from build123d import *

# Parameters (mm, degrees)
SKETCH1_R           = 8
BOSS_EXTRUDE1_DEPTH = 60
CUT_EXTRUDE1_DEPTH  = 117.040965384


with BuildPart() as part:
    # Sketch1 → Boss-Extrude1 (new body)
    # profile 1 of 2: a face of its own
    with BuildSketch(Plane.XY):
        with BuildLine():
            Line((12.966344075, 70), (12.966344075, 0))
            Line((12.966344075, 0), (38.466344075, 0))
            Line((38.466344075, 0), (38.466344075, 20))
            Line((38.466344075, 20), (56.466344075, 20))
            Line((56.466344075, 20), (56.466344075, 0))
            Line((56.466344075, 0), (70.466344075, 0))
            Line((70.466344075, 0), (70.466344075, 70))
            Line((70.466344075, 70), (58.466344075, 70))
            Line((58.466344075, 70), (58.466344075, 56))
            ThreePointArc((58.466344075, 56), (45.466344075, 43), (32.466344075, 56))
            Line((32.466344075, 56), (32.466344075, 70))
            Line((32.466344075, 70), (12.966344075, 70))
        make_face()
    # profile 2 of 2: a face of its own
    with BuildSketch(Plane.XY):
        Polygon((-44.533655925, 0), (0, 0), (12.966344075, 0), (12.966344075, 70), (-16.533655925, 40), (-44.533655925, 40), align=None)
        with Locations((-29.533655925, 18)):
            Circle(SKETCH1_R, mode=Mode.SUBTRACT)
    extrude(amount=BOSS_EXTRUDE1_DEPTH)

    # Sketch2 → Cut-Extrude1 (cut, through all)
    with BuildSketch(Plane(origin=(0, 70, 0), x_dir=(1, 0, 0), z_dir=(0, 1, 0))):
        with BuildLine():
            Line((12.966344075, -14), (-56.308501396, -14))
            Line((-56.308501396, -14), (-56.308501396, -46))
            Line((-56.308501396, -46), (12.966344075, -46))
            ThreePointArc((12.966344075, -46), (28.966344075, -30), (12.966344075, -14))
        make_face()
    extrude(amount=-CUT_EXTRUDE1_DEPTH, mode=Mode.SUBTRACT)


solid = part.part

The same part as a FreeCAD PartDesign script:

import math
import FreeCAD as App
import Part
import Sketcher
from FreeCAD import Vector
Q = App.Units.Quantity

doc = App.newDocument("Part")
params = doc.addObject("Spreadsheet::Sheet", "Params")
for row, (alias, value) in enumerate([
    ("sketch1_diameter", "16 mm"),
    ("sketch1_radius", "13 mm"),
    ("sketch1_width", "18 mm"),
    ("sketch1_width2", "14 mm"),
    ("sketch1_width3", "12 mm"),
    ("pad1_length", "60 mm"),
    ("sketch2_radius", "16 mm"),
], start=1):
    params.set(f"A{row}", alias)
    params.set(f"B{row}", "=" + value)
    params.setAlias(f"B{row}", alias)

body = doc.addObject("PartDesign::Body", "Body")

sketch1 = doc.addObject("Sketcher::SketchObject", "Sketch")
body.addObject(sketch1)
sketch1.AttachmentSupport = (doc.XY_Plane, [""])
sketch1.MapMode = "FlatFace"
sketch1.addGeometry([
    Part.LineSegment(Vector(38.466344, 0, 0), Vector(38.466344, 20, 0)),
    Part.LineSegment(Vector(38.466344, 20, 0), Vector(56.466344, 20, 0)),
    Part.LineSegment(Vector(56.466344, 20, 0), Vector(56.466344, 0, 0)),
    Part.LineSegment(Vector(56.466344, 0, 0), Vector(70.466344, 0, 0)),
    Part.LineSegment(Vector(70.466344, 0, 0), Vector(70.466344, 70, 0)),
    Part.LineSegment(Vector(70.466344, 70, 0), Vector(58.466344, 70, 0)),
    Part.LineSegment(Vector(58.466344, 70, 0), Vector(58.466344, 56, 0)),
    Part.ArcOfCircle(Part.Circle(Vector(45.466344, 56, 0), Vector(0, 0, 1), 13), math.radians(180), math.radians(360)),
    Part.LineSegment(Vector(32.466344, 56, 0), Vector(32.466344, 70, 0)),
    Part.LineSegment(Vector(32.466344, 70, 0), Vector(12.966344, 70, 0)),
    Part.LineSegment(Vector(12.966344, 70, 0), Vector(-16.533656, 40, 0)),
    Part.LineSegment(Vector(-16.533656, 40, 0), Vector(-44.533656, 40, 0)),
    Part.LineSegment(Vector(-44.533656, 40, 0), Vector(-44.533656, 0, 0)),
    Part.LineSegment(Vector(-44.533656, 0, 0), Vector(38.466344, 0, 0)),
    Part.Circle(Vector(-29.533656, 18, 0), Vector(0, 0, 1), 8),
], False)
sketch1.addConstraint([
    Sketcher.Constraint("Coincident", 0, 2, 1, 1),
    Sketcher.Constraint("Coincident", 1, 2, 2, 1),
    Sketcher.Constraint("Coincident", 2, 2, 3, 1),
    Sketcher.Constraint("Coincident", 3, 2, 4, 1),
    Sketcher.Constraint("Coincident", 4, 2, 5, 1),
    Sketcher.Constraint("Coincident", 5, 2, 6, 1),
    Sketcher.Constraint("Tangent", 6, 2, 7, 2),
    Sketcher.Constraint("Tangent", 7, 1, 8, 1),
    Sketcher.Constraint("Coincident", 8, 2, 9, 1),
    Sketcher.Constraint("Coincident", 9, 2, 10, 1),
    Sketcher.Constraint("Coincident", 10, 2, 11, 1),
    Sketcher.Constraint("Coincident", 11, 2, 12, 1),
    Sketcher.Constraint("Coincident", 12, 2, 13, 1),
    Sketcher.Constraint("Coincident", 13, 2, 0, 1),
    Sketcher.Constraint("Vertical", 0),
    Sketcher.Constraint("Horizontal", 1),
    Sketcher.Constraint("Vertical", 2),
    Sketcher.Constraint("Horizontal", 3),
    Sketcher.Constraint("Vertical", 4),
    Sketcher.Constraint("Horizontal", 5),
    Sketcher.Constraint("Vertical", 6),
    Sketcher.Constraint("Vertical", 8),
    Sketcher.Constraint("Horizontal", 9),
    Sketcher.Constraint("Horizontal", 11),
    Sketcher.Constraint("Vertical", 12),
    Sketcher.Constraint("Horizontal", 13),
    Sketcher.Constraint("PointOnObject", 2, 2, -1),
    Sketcher.Constraint("PointOnObject", 12, 2, -1),
    Sketcher.Constraint("Horizontal", 5, 2, 8, 2),
    Sketcher.Constraint("Equal", 3, 6),
    Sketcher.Constraint("Diameter", 14, Q("16 mm")),
    Sketcher.Constraint("Radius", 7, Q("13 mm")),
    Sketcher.Constraint("DistanceX", 1, 1, 1, 2, Q("18 mm")),
    Sketcher.Constraint("DistanceX", 3, 1, 3, 2, Q("14 mm")),
    Sketcher.Constraint("DistanceX", 5, 2, 5, 1, Q("12 mm")),
    Sketcher.Constraint("DistanceX", 11, 2, 11, 1, Q("28 mm")),
    Sketcher.Constraint("DistanceX", 13, 1, 13, 2, Q("83 mm")),
    Sketcher.Constraint("DistanceY", 0, 1, 0, 2, Q("20 mm")),
    Sketcher.Constraint("DistanceY", 4, 1, 4, 2, Q("70 mm")),
    Sketcher.Constraint("DistanceY", 12, 2, 12, 1, Q("40 mm")),
    Sketcher.Constraint("DistanceX", 9, 2, 9, 1, Q("19.5 mm")),
    Sketcher.Constraint("DistanceY", -1, 1, 14, 3, Q("18 mm")),
    Sketcher.Constraint("DistanceX", 14, 3, 7, 3, Q("75 mm")),
    Sketcher.Constraint("DistanceX", -1, 1, 7, 3, Q("45.466344 mm")),
])
sketch1.setExpression("Constraints[30]", "Params.sketch1_diameter")
sketch1.setExpression("Constraints[31]", "Params.sketch1_radius")
sketch1.setExpression("Constraints[32]", "Params.sketch1_width")
sketch1.setExpression("Constraints[33]", "Params.sketch1_width2")
sketch1.setExpression("Constraints[34]", "Params.sketch1_width3")
pad1 = doc.addObject("PartDesign::Pad", "Pad")
body.addObject(pad1)
pad1.Profile = sketch1
pad1.setExpression("Length", "Params.pad1_length")

sketch2 = doc.addObject("Sketcher::SketchObject", "Sketch001")
body.addObject(sketch2)
sketch2.AttachmentSupport = (doc.XZ_Plane, [""])
sketch2.MapMode = "FlatFace"
sketch2.AttachmentOffset = App.Placement(Vector(0, 0, -70), App.Rotation())
sketch2.addGeometry([
    Part.LineSegment(Vector(12.966344, 14, 0), Vector(-56.308501, 14, 0)),
    Part.LineSegment(Vector(-56.308501, 14, 0), Vector(-56.308501, 46, 0)),
    Part.LineSegment(Vector(-56.308501, 46, 0), Vector(12.966344, 46, 0)),
    Part.ArcOfCircle(Part.Circle(Vector(12.966344, 30, 0), Vector(0, 0, 1), 16), math.radians(-90), math.radians(90)),
], False)
sketch2.addConstraint([
    Sketcher.Constraint("Coincident", 0, 2, 1, 1),
    Sketcher.Constraint("Coincident", 1, 2, 2, 1),
    Sketcher.Constraint("Tangent", 2, 2, 3, 2),
    Sketcher.Constraint("Tangent", 3, 1, 0, 1),
    Sketcher.Constraint("Horizontal", 0),
    Sketcher.Constraint("Vertical", 1),
    Sketcher.Constraint("Horizontal", 2),
    Sketcher.Constraint("Radius", 3, Q("16 mm")),
    Sketcher.Constraint("DistanceY", -1, 1, 3, 3, Q("30 mm")),
    Sketcher.Constraint("DistanceX", 0, 2, -1, 1, Q("56.308501 mm")),
    Sketcher.Constraint("DistanceX", 0, 2, 0, 1, Q("69.274845 mm")),
])
sketch2.setExpression("Constraints[7]", "Params.sketch2_radius")
pocket1 = doc.addObject("PartDesign::Pocket", "Pocket")
body.addObject(pocket1)
pocket1.Profile = sketch2
pocket1.Type = "ThroughAll"
pocket1.Reversed = True

doc.recompute()
